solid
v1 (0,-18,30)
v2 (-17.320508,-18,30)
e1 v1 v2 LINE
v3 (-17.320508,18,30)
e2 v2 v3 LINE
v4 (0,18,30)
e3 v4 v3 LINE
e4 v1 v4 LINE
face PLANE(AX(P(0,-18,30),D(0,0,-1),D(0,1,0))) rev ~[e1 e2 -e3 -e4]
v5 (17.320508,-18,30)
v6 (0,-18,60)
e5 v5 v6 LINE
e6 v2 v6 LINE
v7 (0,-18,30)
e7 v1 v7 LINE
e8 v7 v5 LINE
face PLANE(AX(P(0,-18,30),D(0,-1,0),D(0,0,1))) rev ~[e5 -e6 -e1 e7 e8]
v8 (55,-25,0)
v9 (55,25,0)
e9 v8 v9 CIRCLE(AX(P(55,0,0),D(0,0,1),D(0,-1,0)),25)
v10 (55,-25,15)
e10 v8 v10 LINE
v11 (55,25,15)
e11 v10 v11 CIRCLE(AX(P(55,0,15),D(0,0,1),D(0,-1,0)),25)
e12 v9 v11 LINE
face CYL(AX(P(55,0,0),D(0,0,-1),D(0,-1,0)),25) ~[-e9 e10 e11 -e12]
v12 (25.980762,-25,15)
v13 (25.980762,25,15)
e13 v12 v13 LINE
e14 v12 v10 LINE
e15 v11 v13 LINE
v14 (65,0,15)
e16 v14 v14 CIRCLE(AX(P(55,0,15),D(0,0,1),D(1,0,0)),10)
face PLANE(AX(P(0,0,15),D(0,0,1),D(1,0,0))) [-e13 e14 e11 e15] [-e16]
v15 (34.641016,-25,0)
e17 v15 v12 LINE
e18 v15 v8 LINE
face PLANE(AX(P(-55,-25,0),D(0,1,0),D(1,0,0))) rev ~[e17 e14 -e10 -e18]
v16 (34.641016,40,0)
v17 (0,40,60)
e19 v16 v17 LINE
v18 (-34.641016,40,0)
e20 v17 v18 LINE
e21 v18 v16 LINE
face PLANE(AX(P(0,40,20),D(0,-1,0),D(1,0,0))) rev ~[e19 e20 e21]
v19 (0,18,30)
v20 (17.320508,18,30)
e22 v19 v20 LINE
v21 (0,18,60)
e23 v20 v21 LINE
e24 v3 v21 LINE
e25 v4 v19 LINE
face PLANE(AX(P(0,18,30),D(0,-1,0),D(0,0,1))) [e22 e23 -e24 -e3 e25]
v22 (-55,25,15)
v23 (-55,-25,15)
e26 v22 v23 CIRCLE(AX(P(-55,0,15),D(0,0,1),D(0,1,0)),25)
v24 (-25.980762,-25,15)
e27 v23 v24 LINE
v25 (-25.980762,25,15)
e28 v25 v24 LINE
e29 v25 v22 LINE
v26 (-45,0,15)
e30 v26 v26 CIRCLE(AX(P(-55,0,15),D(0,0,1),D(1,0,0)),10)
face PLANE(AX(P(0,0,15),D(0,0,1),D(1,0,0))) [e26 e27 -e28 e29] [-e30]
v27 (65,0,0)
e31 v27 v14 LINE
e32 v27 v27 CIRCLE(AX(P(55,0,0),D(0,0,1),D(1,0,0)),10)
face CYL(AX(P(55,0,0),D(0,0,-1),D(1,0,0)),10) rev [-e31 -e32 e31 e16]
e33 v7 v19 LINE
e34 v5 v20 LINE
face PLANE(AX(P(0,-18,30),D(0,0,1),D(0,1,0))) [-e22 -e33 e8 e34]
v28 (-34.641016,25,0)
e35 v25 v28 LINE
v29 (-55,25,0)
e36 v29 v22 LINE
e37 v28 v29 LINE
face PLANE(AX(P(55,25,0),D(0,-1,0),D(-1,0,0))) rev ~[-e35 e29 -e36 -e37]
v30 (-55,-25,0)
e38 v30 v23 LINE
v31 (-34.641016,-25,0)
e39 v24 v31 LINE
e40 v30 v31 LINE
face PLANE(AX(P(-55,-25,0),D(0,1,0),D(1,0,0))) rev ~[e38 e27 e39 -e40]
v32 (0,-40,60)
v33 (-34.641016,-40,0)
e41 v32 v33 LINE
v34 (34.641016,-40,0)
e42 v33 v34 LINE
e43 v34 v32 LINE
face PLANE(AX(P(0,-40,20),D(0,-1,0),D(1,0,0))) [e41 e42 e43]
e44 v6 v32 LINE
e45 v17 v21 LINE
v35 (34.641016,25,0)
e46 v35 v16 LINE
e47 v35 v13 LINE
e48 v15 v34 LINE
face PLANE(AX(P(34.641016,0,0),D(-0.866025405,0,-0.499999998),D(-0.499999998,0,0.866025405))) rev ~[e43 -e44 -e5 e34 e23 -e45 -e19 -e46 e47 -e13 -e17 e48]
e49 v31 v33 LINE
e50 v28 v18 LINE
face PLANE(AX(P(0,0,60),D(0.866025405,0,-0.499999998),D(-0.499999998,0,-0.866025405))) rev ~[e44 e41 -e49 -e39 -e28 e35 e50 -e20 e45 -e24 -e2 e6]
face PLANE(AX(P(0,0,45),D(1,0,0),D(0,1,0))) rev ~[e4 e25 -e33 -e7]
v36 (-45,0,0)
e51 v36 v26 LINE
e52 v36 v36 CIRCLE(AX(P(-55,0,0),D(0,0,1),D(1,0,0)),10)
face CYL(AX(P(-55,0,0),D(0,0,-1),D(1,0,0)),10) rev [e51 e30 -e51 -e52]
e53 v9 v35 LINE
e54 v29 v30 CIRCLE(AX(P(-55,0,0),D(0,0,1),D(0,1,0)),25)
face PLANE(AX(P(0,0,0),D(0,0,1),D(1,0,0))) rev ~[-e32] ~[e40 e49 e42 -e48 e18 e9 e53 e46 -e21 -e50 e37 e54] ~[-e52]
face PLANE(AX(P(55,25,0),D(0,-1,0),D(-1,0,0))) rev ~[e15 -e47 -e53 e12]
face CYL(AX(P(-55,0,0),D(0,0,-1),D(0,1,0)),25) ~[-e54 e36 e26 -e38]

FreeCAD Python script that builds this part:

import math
import FreeCAD as App
import Part
import Sketcher

V = App.Vector
Q = App.Units.Quantity

doc = App.newDocument("Part")
body = doc.addObject("PartDesign::Body", "Body")

# Sketch on XY plane
sketch1 = doc.addObject("Sketcher::SketchObject", "Sketch")
body.addObject(sketch1)
sketch1.AttachmentSupport = (doc.XY_Plane, [""])
sketch1.MapMode = "FlatFace"
sketch1.addGeometry(Part.LineSegment(V(-55, -25, 0), V(55, -25, 0)), False)
sketch1.addGeometry(Part.ArcOfCircle(Part.Circle(V(55, 0, 0), V(0, 0, 1), 25), math.radians(-90), math.radians(90)), False)
sketch1.addGeometry(Part.LineSegment(V(55, 25, 0), V(-55, 25, 0)), False)
sketch1.addGeometry(Part.ArcOfCircle(Part.Circle(V(-55, 0, 0), V(0, 0, 1), 25), math.radians(90), math.radians(270)), False)
sketch1.addGeometry(Part.Circle(V(-55, 0, 0), V(0, 0, 1), 10), False)
sketch1.addGeometry(Part.Circle(V(55, 0, 0), V(0, 0, 1), 10), False)
sketch1.addConstraint(Sketcher.Constraint("Tangent", 0, 2, 1, 1))
sketch1.addConstraint(Sketcher.Constraint("Tangent", 1, 2, 2, 1))
sketch1.addConstraint(Sketcher.Constraint("Tangent", 2, 2, 3, 1))
sketch1.addConstraint(Sketcher.Constraint("Tangent", 3, 2, 0, 1))
sketch1.addConstraint(Sketcher.Constraint("Horizontal", 0))
sketch1.addConstraint(Sketcher.Constraint("Horizontal", 2))
sketch1.addConstraint(Sketcher.Constraint("Coincident", 4, 3, 3, 3))
sketch1.addConstraint(Sketcher.Constraint("Coincident", 5, 3, 1, 3))
sketch1.addConstraint(Sketcher.Constraint("Equal", 4, 5))
sketch1.addConstraint(Sketcher.Constraint("Symmetric", 1, 3, 3, 3, -1, 1))
sketch1.addConstraint(Sketcher.Constraint("Diameter", 4, Q("20 mm")))
sketch1.addConstraint(Sketcher.Constraint("Radius", 1, Q("25 mm")))
sketch1.addConstraint(Sketcher.Constraint("DistanceX", 0, 1, 0, 2, Q("110 mm")))
pad1 = doc.addObject("PartDesign::Pad", "Pad")
body.addObject(pad1)
pad1.Profile = sketch1
pad1.Length = 15

# Sketch on XZ plane
sketch2 = doc.addObject("Sketcher::SketchObject", "Sketch001")
body.addObject(sketch2)
sketch2.AttachmentSupport = (doc.XZ_Plane, [""])
sketch2.MapMode = "FlatFace"
sketch2.addGeometry(Part.LineSegment(V(34.641016, 0, 0), V(0, 60, 0)), False)
sketch2.addGeometry(Part.LineSegment(V(0, 60, 0), V(-34.641016, 0, 0)), False)
sketch2.addGeometry(Part.LineSegment(V(-34.641016, 0, 0), V(34.641016, 0, 0)), False)
sketch2.addConstraint(Sketcher.Constraint("Coincident", 0, 2, 1, 1))
sketch2.addConstraint(Sketcher.Constraint("Coincident", 1, 2, 2, 1))
sketch2.addConstraint(Sketcher.Constraint("Coincident", 2, 2, 0, 1))
sketch2.addConstraint(Sketcher.Constraint("Horizontal", 2))
sketch2.addConstraint(Sketcher.Constraint("Symmetric", 1, 2, 2, 2, -1, 1))
sketch2.addConstraint(Sketcher.Constraint("PointOnObject", 0, 2, -2))
sketch2.addConstraint(Sketcher.Constraint("Angle", 0, Q("120 deg")))
sketch2.addConstraint(Sketcher.Constraint("DistanceY", -1, 1, 0, 2, Q("60 mm")))
pad2 = doc.addObject("PartDesign::Pad", "Pad001")
body.addObject(pad2)
pad2.Profile = sketch2
pad2.Length = 40

# Sketch on XZ plane
sketch3 = doc.addObject("Sketcher::SketchObject", "Sketch002")
body.addObject(sketch3)
sketch3.AttachmentSupport = (doc.XZ_Plane, [""])
sketch3.MapMode = "FlatFace"
sketch3.AttachmentOffset = App.Placement(V(0, 0, 40), App.Rotation())
sketch3.addGeometry(Part.LineSegment(V(34.641016, 0, 0), V(0, 60, 0)), False)
sketch3.addGeometry(Part.LineSegment(V(0, 60, 0), V(-34.641016, 0, 0)), False)
sketch3.addGeometry(Part.LineSegment(V(-34.641016, 0, 0), V(34.641016, 0, 0)), False)
sketch3.addConstraint(Sketcher.Constraint("Coincident", 0, 2, 1, 1))
sketch3.addConstraint(Sketcher.Constraint("Coincident", 1, 2, 2, 1))
sketch3.addConstraint(Sketcher.Constraint("Coincident", 2, 2, 0, 1))
sketch3.addConstraint(Sketcher.Constraint("Horizontal", 2))
sketch3.addConstraint(Sketcher.Constraint("Symmetric", 1, 2, 2, 2, -1, 1))
sketch3.addConstraint(Sketcher.Constraint("PointOnObject", 0, 2, -2))
sketch3.addConstraint(Sketcher.Constraint("Angle", 0, Q("120 deg")))
sketch3.addConstraint(Sketcher.Constraint("DistanceY", -1, 1, 0, 2, Q("60 mm")))
pad3 = doc.addObject("PartDesign::Pad", "Pad002")
body.addObject(pad3)
pad3.Profile = sketch3
pad3.Length = 80
pad3.Reversed = True

# Sketch on YZ plane
sketch4 = doc.addObject("Sketcher::SketchObject", "Sketch003")
body.addObject(sketch4)
sketch4.AttachmentSupport = (doc.YZ_Plane, [""])
sketch4.MapMode = "FlatFace"
sketch4.addGeometry(Part.LineSegment(V(-18, 61, 0), V(-18, 30, 0)), False)
sketch4.addGeometry(Part.LineSegment(V(-18, 30, 0), V(18, 30, 0)), False)
sketch4.addGeometry(Part.LineSegment(V(18, 30, 0), V(18, 61, 0)), False)
sketch4.addGeometry(Part.LineSegment(V(18, 61, 0), V(-18, 61, 0)), False)
sketch4.addConstraint(Sketcher.Constraint("Coincident", 0, 2, 1, 1))
sketch4.addConstraint(Sketcher.Constraint("Coincident", 1, 2, 2, 1))
sketch4.addConstraint(Sketcher.Constraint("Coincident", 2, 2, 3, 1))
sketch4.addConstraint(Sketcher.Constraint("Coincident", 3, 2, 0, 1))
sketch4.addConstraint(Sketcher.Constraint("Vertical", 0))
sketch4.addConstraint(Sketcher.Constraint("Horizontal", 1))
sketch4.addConstraint(Sketcher.Constraint("Vertical", 2))
sketch4.addConstraint(Sketcher.Constraint("Horizontal", 3))
sketch4.addConstraint(Sketcher.Constraint("DistanceX", 1, 1, 1, 2, Q("36 mm")))
sketch4.addConstraint(Sketcher.Constraint("DistanceX", 0, 2, -1, 1, Q("18 mm")))
sketch4.addConstraint(Sketcher.Constraint("DistanceY", -1, 1, 0, 2, Q("30 mm")))
sketch4.addConstraint(Sketcher.Constraint("DistanceY", 0, 2, 0, 1, Q("30.551141 mm")))
pocket1 = doc.addObject("PartDesign::Pocket", "Pocket")
body.addObject(pocket1)
pocket1.Profile = sketch4
pocket1.Length = 25
pocket1.Reversed = True

# Sketch on YZ plane
sketch5 = doc.addObject("Sketcher::SketchObject", "Sketch004")
body.addObject(sketch5)
sketch5.AttachmentSupport = (doc.YZ_Plane, [""])
sketch5.MapMode = "FlatFace"
sketch5.addGeometry(Part.LineSegment(V(-18, 60, 0), V(-18, 30, 0)), False)
sketch5.addGeometry(Part.LineSegment(V(-18, 30, 0), V(18, 30, 0)), False)
sketch5.addGeometry(Part.LineSegment(V(18, 30, 0), V(18, 60, 0)), False)
sketch5.addGeometry(Part.LineSegment(V(18, 60, 0), V(-18, 60, 0)), False)
sketch5.addConstraint(Sketcher.Constraint("Coincident", 0, 2, 1, 1))
sketch5.addConstraint(Sketcher.Constraint("Coincident", 1, 2, 2, 1))
sketch5.addConstraint(Sketcher.Constraint("Coincident", 2, 2, 3, 1))
sketch5.addConstraint(Sketcher.Constraint("Coincident", 3, 2, 0, 1))
sketch5.addConstraint(Sketcher.Constraint("Vertical", 0))
sketch5.addConstraint(Sketcher.Constraint("Horizontal", 1))
sketch5.addConstraint(Sketcher.Constraint("Vertical", 2))
sketch5.addConstraint(Sketcher.Constraint("Horizontal", 3))
sketch5.addConstraint(Sketcher.Constraint("DistanceX", 1, 1, 1, 2, Q("36 mm")))
sketch5.addConstraint(Sketcher.Constraint("DistanceY", 0, 2, 0, 1, Q("30 mm")))
sketch5.addConstraint(Sketcher.Constraint("DistanceX", 0, 2, -1, 1, Q("18 mm")))
sketch5.addConstraint(Sketcher.Constraint("DistanceY", -1, 1, 0, 2, Q("30 mm")))
pocket2 = doc.addObject("PartDesign::Pocket", "Pocket001")
body.addObject(pocket2)
pocket2.Profile = sketch5
pocket2.Length = 25

doc.recompute()
